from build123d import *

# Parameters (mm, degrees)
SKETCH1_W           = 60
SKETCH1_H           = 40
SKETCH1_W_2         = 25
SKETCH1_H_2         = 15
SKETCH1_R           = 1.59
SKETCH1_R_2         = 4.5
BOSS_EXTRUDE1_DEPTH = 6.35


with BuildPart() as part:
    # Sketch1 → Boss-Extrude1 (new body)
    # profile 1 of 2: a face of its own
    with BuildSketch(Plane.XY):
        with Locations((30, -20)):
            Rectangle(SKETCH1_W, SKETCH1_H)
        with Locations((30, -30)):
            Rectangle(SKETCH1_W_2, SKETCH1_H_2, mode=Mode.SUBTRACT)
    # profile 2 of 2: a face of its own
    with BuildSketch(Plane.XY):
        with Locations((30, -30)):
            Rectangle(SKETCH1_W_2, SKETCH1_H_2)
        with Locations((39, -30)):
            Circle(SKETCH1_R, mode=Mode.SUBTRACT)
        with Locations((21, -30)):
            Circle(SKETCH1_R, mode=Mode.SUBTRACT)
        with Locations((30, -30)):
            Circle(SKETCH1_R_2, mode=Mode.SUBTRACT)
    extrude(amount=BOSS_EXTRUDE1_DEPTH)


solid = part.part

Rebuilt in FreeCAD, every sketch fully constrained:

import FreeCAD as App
import Part
import Sketcher
from FreeCAD import Vector


def add_polygon(sketch, points):
    """Adds a closed chain of lines whose ends are joined by coincident constraints."""
    first, n = sketch.GeometryCount, len(points)
    for a, b in zip(points, points[1:] + points[:1]):
        sketch.addGeometry(Part.LineSegment(App.Vector(*a, 0), App.Vector(*b, 0)), False)
    for i in range(n):
        sketch.addConstraint(Sketcher.Constraint("Coincident", first + i, 2, first + (i + 1) % n, 1))

doc = App.newDocument("Part")
params = doc.addObject("Spreadsheet::Sheet", "Params")
for row, (alias, value) in enumerate([
    ("sketch1_diameter", "9 mm"),
    ("sketch1_diameter2", "3.18 mm"),
    ("sketch1_width", "60 mm"),
    ("sketch1_height", "40 mm"),
    ("pad1_length", "6.35 mm"),
], start=1):
    params.set(f"A{row}", alias)
    params.set(f"B{row}", "=" + value)
    params.setAlias(f"B{row}", alias)

body = doc.addObject("PartDesign::Body", "Body")

sketch1 = doc.addObject("Sketcher::SketchObject", "Sketch")
body.addObject(sketch1)
sketch1.AttachmentSupport = (doc.XY_Plane, [""])
sketch1.MapMode = "FlatFace"
add_polygon(sketch1, [(0, 0), (0, -40), (60, -40), (60, 0)])
sketch1.addGeometry(Part.Circle(Vector(30, -30, 0), Vector(0, 0, 1), 4.5), False)
sketch1.addGeometry(Part.Circle(Vector(39, -30, 0), Vector(0, 0, 1), 1.59), False)
sketch1.addGeometry(Part.Circle(Vector(21, -30, 0), Vector(0, 0, 1), 1.59), False)
sketch1.addConstraint([
    Sketcher.Constraint("Vertical", 0),
    Sketcher.Constraint("Horizontal", 1),
    Sketcher.Constraint("Vertical", 2),
    Sketcher.Constraint("Horizontal", 3),
    Sketcher.Constraint("Coincident", 3, 2, -1, 1),
    Sketcher.Constraint("Equal", 5, 6),
    Sketcher.Constraint("Horizontal", 4, 3, 5, 3),
    Sketcher.Constraint("Horizontal", 5, 3, 6, 3),
    Sketcher.Constraint("Diameter", 4, 9.0),
    Sketcher.Constraint("Diameter", 5, 3.18),
    Sketcher.Constraint("DistanceX", 1, 1, 1, 2, 60.0),
    Sketcher.Constraint("DistanceY", 0, 2, 0, 1, 40.0),
    Sketcher.Constraint("DistanceX", -1, 1, 4, 3, 30.0),
    Sketcher.Constraint("DistanceY", 4, 3, -1, 1, 30.0),
    Sketcher.Constraint("DistanceX", -1, 1, 5, 3, 39.0),
    Sketcher.Constraint("DistanceX", -1, 1, 6, 3, 21.0),
])
sketch1.setExpression("Constraints[12]", "Params.sketch1_diameter")
sketch1.setExpression("Constraints[13]", "Params.sketch1_diameter2")
sketch1.setExpression("Constraints[14]", "Params.sketch1_width")
sketch1.setExpression("Constraints[15]", "Params.sketch1_height")
pad1 = doc.addObject("PartDesign::Pad", "Pad")
body.addObject(pad1)
pad1.Profile = sketch1
pad1.setExpression("Length", "Params.pad1_length")

doc.recompute()
